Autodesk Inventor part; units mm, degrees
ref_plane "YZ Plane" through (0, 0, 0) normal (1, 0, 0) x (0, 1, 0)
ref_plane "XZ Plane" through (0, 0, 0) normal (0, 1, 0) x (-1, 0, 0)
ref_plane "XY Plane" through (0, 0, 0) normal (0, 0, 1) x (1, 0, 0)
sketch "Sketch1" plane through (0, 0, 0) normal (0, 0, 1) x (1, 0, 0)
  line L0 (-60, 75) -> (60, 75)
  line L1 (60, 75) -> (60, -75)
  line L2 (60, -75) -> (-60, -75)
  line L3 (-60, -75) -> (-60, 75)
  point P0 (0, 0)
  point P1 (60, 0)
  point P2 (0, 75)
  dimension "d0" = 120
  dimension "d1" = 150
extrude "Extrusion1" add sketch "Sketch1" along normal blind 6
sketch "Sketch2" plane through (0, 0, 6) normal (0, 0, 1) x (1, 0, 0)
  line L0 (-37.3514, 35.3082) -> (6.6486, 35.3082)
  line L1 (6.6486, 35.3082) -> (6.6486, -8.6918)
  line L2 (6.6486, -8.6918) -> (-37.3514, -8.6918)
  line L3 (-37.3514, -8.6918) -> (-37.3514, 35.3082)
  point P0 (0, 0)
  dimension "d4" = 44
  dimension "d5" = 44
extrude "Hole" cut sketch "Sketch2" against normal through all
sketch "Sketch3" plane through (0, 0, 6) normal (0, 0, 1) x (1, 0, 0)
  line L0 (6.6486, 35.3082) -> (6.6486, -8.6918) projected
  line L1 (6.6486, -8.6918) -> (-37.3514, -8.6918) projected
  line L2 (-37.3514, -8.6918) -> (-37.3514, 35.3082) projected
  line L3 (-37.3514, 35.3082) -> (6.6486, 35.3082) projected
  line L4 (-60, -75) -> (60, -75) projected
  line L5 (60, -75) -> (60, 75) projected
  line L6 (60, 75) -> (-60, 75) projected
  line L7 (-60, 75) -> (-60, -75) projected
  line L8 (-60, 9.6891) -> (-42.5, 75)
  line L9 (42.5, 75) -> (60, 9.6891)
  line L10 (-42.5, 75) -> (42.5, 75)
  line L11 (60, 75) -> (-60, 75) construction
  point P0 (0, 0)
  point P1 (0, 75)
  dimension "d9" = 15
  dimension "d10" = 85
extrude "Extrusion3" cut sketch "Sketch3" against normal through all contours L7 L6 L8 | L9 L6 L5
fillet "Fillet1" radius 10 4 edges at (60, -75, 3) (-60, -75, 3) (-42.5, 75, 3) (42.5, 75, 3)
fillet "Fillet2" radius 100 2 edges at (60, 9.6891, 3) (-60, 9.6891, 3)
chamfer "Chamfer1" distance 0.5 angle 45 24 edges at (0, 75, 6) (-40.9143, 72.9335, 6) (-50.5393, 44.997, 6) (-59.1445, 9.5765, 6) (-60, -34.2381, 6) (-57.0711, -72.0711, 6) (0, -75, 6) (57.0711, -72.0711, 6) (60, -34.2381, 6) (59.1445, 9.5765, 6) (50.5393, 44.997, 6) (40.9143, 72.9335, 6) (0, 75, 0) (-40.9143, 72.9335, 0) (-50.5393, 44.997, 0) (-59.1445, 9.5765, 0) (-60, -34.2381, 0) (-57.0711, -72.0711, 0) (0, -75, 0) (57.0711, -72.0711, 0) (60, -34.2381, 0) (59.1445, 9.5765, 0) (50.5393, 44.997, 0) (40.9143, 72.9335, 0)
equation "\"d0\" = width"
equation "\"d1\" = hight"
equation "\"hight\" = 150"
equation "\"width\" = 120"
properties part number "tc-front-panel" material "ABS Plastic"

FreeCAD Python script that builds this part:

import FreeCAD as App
import Part
import Sketcher
from FreeCAD import Vector
Q = App.Units.Quantity


def edges_at(feature, points):
    """Names of the edges that pass closest to the given points."""
    edges = feature.Shape.Edges
    near = lambda p: min(range(len(edges)), key=lambda i: edges[i].distToShape(Part.Vertex(*p))[0])
    return sorted({f"Edge{near(p) + 1}" for p in points})

doc = App.newDocument("Part")
body = doc.addObject("PartDesign::Body", "Body")

# Sketch on XY plane
sketch1 = body.newObject("Sketcher::SketchObject", "Sketch")
sketch1.AttachmentSupport = (doc.getObject("XY_Plane"), [""])
sketch1.MapMode = "FlatFace"
sketch1.addGeometry([
    Part.LineSegment(Vector(60, 75, 0), Vector(-60, 75, 0)),
    Part.LineSegment(Vector(-60, 75, 0), Vector(-60, -75, 0)),
    Part.LineSegment(Vector(-60, -75, 0), Vector(60, -75, 0)),
    Part.LineSegment(Vector(60, -75, 0), Vector(60, 75, 0)),
], False)
sketch1.addConstraint([
    Sketcher.Constraint("Coincident", 0, 2, 1, 1),
    Sketcher.Constraint("Coincident", 1, 2, 2, 1),
    Sketcher.Constraint("Coincident", 2, 2, 3, 1),
    Sketcher.Constraint("Coincident", 3, 2, 0, 1),
    Sketcher.Constraint("Horizontal", 0),
    Sketcher.Constraint("Vertical", 1),
    Sketcher.Constraint("Horizontal", 2),
    Sketcher.Constraint("Vertical", 3),
    Sketcher.Constraint("Symmetric", 0, 2, 2, 2, -1, 1),
    Sketcher.Constraint("DistanceX", 0, 2, 0, 1, 120.0),
    Sketcher.Constraint("DistanceY", 1, 2, 1, 1, 150.0),
])
pad1 = body.newObject("PartDesign::Pad", "Pad")
pad1.Profile = sketch1
pad1.Length = 6

# Sketch on XY plane
sketch2 = body.newObject("Sketcher::SketchObject", "Sketch001")
sketch2.AttachmentSupport = (doc.getObject("XY_Plane"), [""])
sketch2.MapMode = "FlatFace"
sketch2.AttachmentOffset = App.Placement(Vector(0, 0, 6), App.Rotation())
sketch2.addGeometry([
    Part.LineSegment(Vector(6.6486, 35.3082, 0), Vector(-37.3514, 35.3082, 0)),
    Part.LineSegment(Vector(-37.3514, 35.3082, 0), Vector(-37.3514, -8.6918, 0)),
    Part.LineSegment(Vector(-37.3514, -8.6918, 0), Vector(6.6486, -8.6918, 0)),
    Part.LineSegment(Vector(6.6486, -8.6918, 0), Vector(6.6486, 35.3082, 0)),
], False)
sketch2.addConstraint([
    Sketcher.Constraint("Coincident", 0, 2, 1, 1),
    Sketcher.Constraint("Coincident", 1, 2, 2, 1),
    Sketcher.Constraint("Coincident", 2, 2, 3, 1),
    Sketcher.Constraint("Coincident", 3, 2, 0, 1),
    Sketcher.Constraint("Horizontal", 0),
    Sketcher.Constraint("Vertical", 1),
    Sketcher.Constraint("Horizontal", 2),
    Sketcher.Constraint("Vertical", 3),
    Sketcher.Constraint("Equal", 2, 1),
    Sketcher.Constraint("DistanceX", 0, 2, 0, 1, 44.0),
    Sketcher.Constraint("DistanceX", 0, 2, -1, 1, 37.3514),
    Sketcher.Constraint("DistanceY", -1, 1, 0, 2, 35.3082),
])
pocket1 = body.newObject("PartDesign::Pocket", "Pocket")
pocket1.Profile = sketch2
pocket1.Type = "ThroughAll"

# Sketch on XY plane
sketch3 = body.newObject("Sketcher::SketchObject", "Sketch002")
sketch3.AttachmentSupport = (doc.getObject("XY_Plane"), [""])
sketch3.MapMode = "FlatFace"
sketch3.AttachmentOffset = App.Placement(Vector(0, 0, 6), App.Rotation())
sketch3.addGeometry([
    Part.LineSegment(Vector(-60, 75, 0), Vector(-60, 9.6891, 0)),  # 0
    Part.LineSegment(Vector(-60, 9.6891, 0), Vector(-42.5, 75, 0)),  # 1
    Part.LineSegment(Vector(-42.5, 75, 0), Vector(-60, 75, 0)),  # 2
    Part.LineSegment(Vector(42.5, 75, 0), Vector(60, 9.6891, 0)),  # 3
    Part.LineSegment(Vector(60, 9.6891, 0), Vector(60, 75, 0)),  # 4
    Part.LineSegment(Vector(60, 75, 0), Vector(42.5, 75, 0)),  # 5
], False)
sketch3.addConstraint([
    Sketcher.Constraint("Coincident", 0, 2, 1, 1),
    Sketcher.Constraint("Coincident", 1, 2, 2, 1),
    Sketcher.Constraint("Coincident", 2, 2, 0, 1),
    Sketcher.Constraint("Coincident", 3, 2, 4, 1),
    Sketcher.Constraint("Coincident", 4, 2, 5, 1),
    Sketcher.Constraint("Coincident", 5, 2, 3, 1),
    Sketcher.Constraint("Vertical", 0),
    Sketcher.Constraint("Horizontal", 2),
    Sketcher.Constraint("Vertical", 4),
    Sketcher.Constraint("Horizontal", 5),
    Sketcher.Constraint("Symmetric", 0, 2, 3, 2, -2),
    Sketcher.Constraint("Symmetric", 1, 2, 5, 2, -2),
    Sketcher.Constraint("DistanceX", 1, 2, 5, 2, 85.0),
    Sketcher.Constraint("Angle", 1, Q("75 deg")),
    Sketcher.Constraint("DistanceX", 2, 2, 2, 1, 17.5),
    Sketcher.Constraint("DistanceY", -1, 1, 1, 2, 75.0),
])
pocket2 = body.newObject("PartDesign::Pocket", "Pocket001")
pocket2.Profile = sketch3
pocket2.Type = "ThroughAll"
doc.recompute()

fillet = body.newObject("PartDesign::Fillet", "Fillet")
fillet.Base = (pocket2, edges_at(pocket2, [
    (60, -75, 3),
    (-60, -75, 3),
    (-42.5, 75, 3),
    (42.5, 75, 3),
]))
fillet.Radius = 10
doc.recompute()

fillet2 = body.newObject("PartDesign::Fillet", "Fillet001")
fillet2.Base = (fillet, edges_at(fillet, [(60, 9.689, 3), (-60, 9.689, 3)]))
fillet2.Radius = 100
doc.recompute()

chamfer = body.newObject("PartDesign::Chamfer", "Chamfer")
chamfer.Base = (fillet2, edges_at(fillet2, [
    (0, 75, 6),
    (-40.914, 72.933, 6),
    (-50.539, 44.997, 6),
    (-59.145, 9.576, 6),
    (-60, -34.238, 6),
    (-57.071, -72.071, 6),
    (0, -75, 6),
    (57.071, -72.071, 6),
    (60, -34.238, 6),
    (59.145, 9.576, 6),
    (50.539, 44.997, 6),
    (40.914, 72.933, 6),
    (0, 75, 0),
    (-40.914, 72.933, 0),
    (-50.539, 44.997, 0),
    (-59.145, 9.576, 0),
    (-60, -34.238, 0),
    (-57.071, -72.071, 0),
    (0, -75, 0),
    (57.071, -72.071, 0),
    (60, -34.238, 0),
    (59.145, 9.576, 0),
    (50.539, 44.997, 0),
    (40.914, 72.933, 0),
]))
chamfer.Size = 0.5

doc.recompute()
